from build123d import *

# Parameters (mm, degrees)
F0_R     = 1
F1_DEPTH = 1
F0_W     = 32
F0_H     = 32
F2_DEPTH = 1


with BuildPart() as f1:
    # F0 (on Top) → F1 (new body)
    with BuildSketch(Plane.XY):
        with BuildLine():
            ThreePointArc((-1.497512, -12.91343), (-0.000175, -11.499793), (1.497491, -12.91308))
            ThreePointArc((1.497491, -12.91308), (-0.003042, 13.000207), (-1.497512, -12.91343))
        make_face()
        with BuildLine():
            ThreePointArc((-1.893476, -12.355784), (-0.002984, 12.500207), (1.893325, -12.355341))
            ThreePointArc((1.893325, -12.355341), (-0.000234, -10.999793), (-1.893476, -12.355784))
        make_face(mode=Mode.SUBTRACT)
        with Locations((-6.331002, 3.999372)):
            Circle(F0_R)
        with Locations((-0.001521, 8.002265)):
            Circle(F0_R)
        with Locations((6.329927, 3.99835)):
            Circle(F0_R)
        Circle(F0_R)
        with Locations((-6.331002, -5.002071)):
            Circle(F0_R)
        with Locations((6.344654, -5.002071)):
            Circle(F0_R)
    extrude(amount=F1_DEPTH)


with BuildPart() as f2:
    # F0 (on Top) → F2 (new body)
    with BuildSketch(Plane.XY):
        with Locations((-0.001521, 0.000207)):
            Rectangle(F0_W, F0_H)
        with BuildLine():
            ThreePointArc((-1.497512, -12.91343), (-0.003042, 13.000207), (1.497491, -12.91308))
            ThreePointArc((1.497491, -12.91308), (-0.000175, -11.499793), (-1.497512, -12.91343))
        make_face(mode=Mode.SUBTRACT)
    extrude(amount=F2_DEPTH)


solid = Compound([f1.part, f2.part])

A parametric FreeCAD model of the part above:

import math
import FreeCAD as App
import Part
import Sketcher

doc = App.newDocument("Part")
body = doc.addObject("PartDesign::Body", "Body")
body.AllowCompound = True

# Sketch on XY plane
sketch1 = body.newObject("Sketcher::SketchObject", "Sketch")
sketch1.AttachmentSupport = (doc.getObject("XY_Plane"), [""])
sketch1.MapMode = "FlatFace"
sketch1.addGeometry(Part.ArcOfCircle(Part.Circle(App.Vector(0, -13, 0), App.Vector(0, 0, 1), 1.5), math.radians(3), math.radians(177)), False)
sketch1.addGeometry(Part.ArcOfCircle(Part.Circle(App.Vector(0, 0, 0), App.Vector(0, 0, 1), 13), math.radians(-83), math.radians(263)), False)
sketch1.addGeometry(Part.ArcOfCircle(Part.Circle(App.Vector(0, -13, 0), App.Vector(0, 0, 1), 2), math.radians(19), math.radians(161)), False)
sketch1.addGeometry(Part.ArcOfCircle(Part.Circle(App.Vector(0, 0, 0), App.Vector(0, 0, 1), 12.5), math.radians(-81), math.radians(261)), False)
sketch1.addGeometry(Part.Circle(App.Vector(-6.3, 4, 0), App.Vector(0, 0, 1), 1), False)
sketch1.addGeometry(Part.Circle(App.Vector(0, 8, 0), App.Vector(0, 0, 1), 1), False)
sketch1.addGeometry(Part.Circle(App.Vector(6.3, 4, 0), App.Vector(0, 0, 1), 1), False)
sketch1.addGeometry(Part.Circle(App.Vector(0, 0, 0), App.Vector(0, 0, 1), 1), False)
sketch1.addGeometry(Part.Circle(App.Vector(-6.3, -5, 0), App.Vector(0, 0, 1), 1), False)
sketch1.addGeometry(Part.Circle(App.Vector(6.3, -5, 0), App.Vector(0, 0, 1), 1), False)
sketch1.addConstraint(Sketcher.Constraint("Coincident", 0, 1, 1, 1))
sketch1.addConstraint(Sketcher.Constraint("Coincident", 1, 2, 0, 2))
sketch1.addConstraint(Sketcher.Constraint("Coincident", 2, 1, 3, 1))
sketch1.addConstraint(Sketcher.Constraint("Coincident", 3, 2, 2, 2))
sketch1.addConstraint(Sketcher.Constraint("Coincident", 7, 3, -1, 1))
sketch1.addConstraint(Sketcher.Constraint("Coincident", 2, 3, 0, 3))
sketch1.addConstraint(Sketcher.Constraint("Coincident", 3, 3, 1, 3))
sketch1.addConstraint(Sketcher.Constraint("Equal", 4, 5))
sketch1.addConstraint(Sketcher.Constraint("Equal", 5, 6))
sketch1.addConstraint(Sketcher.Constraint("Equal", 6, 7))
sketch1.addConstraint(Sketcher.Constraint("Equal", 7, 8))
sketch1.addConstraint(Sketcher.Constraint("Equal", 8, 9))
sketch1.addConstraint(Sketcher.Constraint("PointOnObject", 0, 3, -2))
sketch1.addConstraint(Sketcher.Constraint("Horizontal", 8, 3, 9, 3))
sketch1.addConstraint(Sketcher.Constraint("Vertical", 3, 3, 5, 3))
sketch1.addConstraint(Sketcher.Constraint("Vertical", 4, 3, 8, 3))
sketch1.addConstraint(Sketcher.Constraint("Diameter", 4, 2.0))
sketch1.addConstraint(Sketcher.Constraint("Radius", 1, 13.0))
sketch1.addConstraint(Sketcher.Constraint("Radius", 2, 1.999999))
sketch1.addConstraint(Sketcher.Constraint("Radius", 0, 1.5))
sketch1.addConstraint(Sketcher.Constraint("Radius", 3, 12.5))
sketch1.addConstraint(Sketcher.Constraint("DistanceY", 0, 3, 1, 3, 13.0))
sketch1.addConstraint(Sketcher.Constraint("DistanceX", 4, 3, -1, 1, 6.331002))
sketch1.addConstraint(Sketcher.Constraint("DistanceX", 1, 3, -1, 1, 0.00152))
sketch1.addConstraint(Sketcher.Constraint("DistanceY", -1, 1, 6, 3, 3.99835))
sketch1.addConstraint(Sketcher.Constraint("DistanceY", 8, 3, -1, 1, 5.002071))
sketch1.addConstraint(Sketcher.Constraint("DistanceY", 0, 1, -1, 1, 12.91308))
sketch1.addConstraint(Sketcher.Constraint("DistanceY", 3, 3, 5, 3, 8.002058))
sketch1.addConstraint(Sketcher.Constraint("DistanceX", 4, 3, 6, 3, 12.660929))
sketch1.addConstraint(Sketcher.Constraint("DistanceX", 2, 1, 9, 3, 4.451329))
sketch1.addConstraint(Sketcher.Constraint("DistanceY", -1, 1, 4, 3, 3.999372))
pad1 = body.newObject("PartDesign::Pad", "Pad")
pad1.Profile = sketch1
pad1.Length = 1
body2 = doc.addObject("PartDesign::Body", "Body001")

# Sketch on XY plane
sketch2 = body2.newObject("Sketcher::SketchObject", "Sketch001")
sketch2.AttachmentSupport = (doc.getObject("XY_Plane001"), [""])
sketch2.MapMode = "FlatFace"
sketch2.addGeometry(Part.LineSegment(App.Vector(-16, 16, 0), App.Vector(-16, -16, 0)), False)
sketch2.addGeometry(Part.LineSegment(App.Vector(-16, -16, 0), App.Vector(16, -16, 0)), False)
sketch2.addGeometry(Part.LineSegment(App.Vector(16, -16, 0), App.Vector(16, 16, 0)), False)
sketch2.addGeometry(Part.LineSegment(App.Vector(16, 16, 0), App.Vector(-16, 16, 0)), False)
sketch2.addGeometry(Part.ArcOfCircle(Part.Circle(App.Vector(0, -13, 0), App.Vector(0, 0, 1), 1.5), math.radians(3), math.radians(177)), False)
sketch2.addGeometry(Part.ArcOfCircle(Part.Circle(App.Vector(0, 0, 0), App.Vector(0, 0, 1), 13), math.radians(-83), math.radians(263)), False)
sketch2.addConstraint(Sketcher.Constraint("Coincident", 0, 2, 1, 1))
sketch2.addConstraint(Sketcher.Constraint("Coincident", 1, 2, 2, 1))
sketch2.addConstraint(Sketcher.Constraint("Coincident", 2, 2, 3, 1))
sketch2.addConstraint(Sketcher.Constraint("Coincident", 3, 2, 0, 1))
sketch2.addConstraint(Sketcher.Constraint("Coincident", 4, 1, 5, 1))
sketch2.addConstraint(Sketcher.Constraint("Coincident", 5, 2, 4, 2))
sketch2.addConstraint(Sketcher.Constraint("Vertical", 0))
sketch2.addConstraint(Sketcher.Constraint("Horizontal", 1))
sketch2.addConstraint(Sketcher.Constraint("Vertical", 2))
sketch2.addConstraint(Sketcher.Constraint("Horizontal", 3))
sketch2.addConstraint(Sketcher.Constraint("PointOnObject", 4, 3, -2))
sketch2.addConstraint(Sketcher.Constraint("Equal", 3, 0))
sketch2.addConstraint(Sketcher.Constraint("Radius", 5, 13.0))
sketch2.addConstraint(Sketcher.Constraint("Radius", 4, 1.5))
sketch2.addConstraint(Sketcher.Constraint("DistanceX", 1, 1, 1, 2, 32.0))
sketch2.addConstraint(Sketcher.Constraint("DistanceY", 4, 3, 5, 3, 13.0))
sketch2.addConstraint(Sketcher.Constraint("DistanceY", 0, 2, 4, 3, 3.0))
sketch2.addConstraint(Sketcher.Constraint("DistanceX", 0, 2, 5, 3, 16.000001))
sketch2.addConstraint(Sketcher.Constraint("DistanceX", 5, 3, -1, 1, 0.00152))
sketch2.addConstraint(Sketcher.Constraint("DistanceY", 4, 1, -1, 1, 12.91308))
pad2 = body2.newObject("PartDesign::Pad", "Pad001")
pad2.Profile = sketch2
pad2.Length = 1

doc.recompute()
